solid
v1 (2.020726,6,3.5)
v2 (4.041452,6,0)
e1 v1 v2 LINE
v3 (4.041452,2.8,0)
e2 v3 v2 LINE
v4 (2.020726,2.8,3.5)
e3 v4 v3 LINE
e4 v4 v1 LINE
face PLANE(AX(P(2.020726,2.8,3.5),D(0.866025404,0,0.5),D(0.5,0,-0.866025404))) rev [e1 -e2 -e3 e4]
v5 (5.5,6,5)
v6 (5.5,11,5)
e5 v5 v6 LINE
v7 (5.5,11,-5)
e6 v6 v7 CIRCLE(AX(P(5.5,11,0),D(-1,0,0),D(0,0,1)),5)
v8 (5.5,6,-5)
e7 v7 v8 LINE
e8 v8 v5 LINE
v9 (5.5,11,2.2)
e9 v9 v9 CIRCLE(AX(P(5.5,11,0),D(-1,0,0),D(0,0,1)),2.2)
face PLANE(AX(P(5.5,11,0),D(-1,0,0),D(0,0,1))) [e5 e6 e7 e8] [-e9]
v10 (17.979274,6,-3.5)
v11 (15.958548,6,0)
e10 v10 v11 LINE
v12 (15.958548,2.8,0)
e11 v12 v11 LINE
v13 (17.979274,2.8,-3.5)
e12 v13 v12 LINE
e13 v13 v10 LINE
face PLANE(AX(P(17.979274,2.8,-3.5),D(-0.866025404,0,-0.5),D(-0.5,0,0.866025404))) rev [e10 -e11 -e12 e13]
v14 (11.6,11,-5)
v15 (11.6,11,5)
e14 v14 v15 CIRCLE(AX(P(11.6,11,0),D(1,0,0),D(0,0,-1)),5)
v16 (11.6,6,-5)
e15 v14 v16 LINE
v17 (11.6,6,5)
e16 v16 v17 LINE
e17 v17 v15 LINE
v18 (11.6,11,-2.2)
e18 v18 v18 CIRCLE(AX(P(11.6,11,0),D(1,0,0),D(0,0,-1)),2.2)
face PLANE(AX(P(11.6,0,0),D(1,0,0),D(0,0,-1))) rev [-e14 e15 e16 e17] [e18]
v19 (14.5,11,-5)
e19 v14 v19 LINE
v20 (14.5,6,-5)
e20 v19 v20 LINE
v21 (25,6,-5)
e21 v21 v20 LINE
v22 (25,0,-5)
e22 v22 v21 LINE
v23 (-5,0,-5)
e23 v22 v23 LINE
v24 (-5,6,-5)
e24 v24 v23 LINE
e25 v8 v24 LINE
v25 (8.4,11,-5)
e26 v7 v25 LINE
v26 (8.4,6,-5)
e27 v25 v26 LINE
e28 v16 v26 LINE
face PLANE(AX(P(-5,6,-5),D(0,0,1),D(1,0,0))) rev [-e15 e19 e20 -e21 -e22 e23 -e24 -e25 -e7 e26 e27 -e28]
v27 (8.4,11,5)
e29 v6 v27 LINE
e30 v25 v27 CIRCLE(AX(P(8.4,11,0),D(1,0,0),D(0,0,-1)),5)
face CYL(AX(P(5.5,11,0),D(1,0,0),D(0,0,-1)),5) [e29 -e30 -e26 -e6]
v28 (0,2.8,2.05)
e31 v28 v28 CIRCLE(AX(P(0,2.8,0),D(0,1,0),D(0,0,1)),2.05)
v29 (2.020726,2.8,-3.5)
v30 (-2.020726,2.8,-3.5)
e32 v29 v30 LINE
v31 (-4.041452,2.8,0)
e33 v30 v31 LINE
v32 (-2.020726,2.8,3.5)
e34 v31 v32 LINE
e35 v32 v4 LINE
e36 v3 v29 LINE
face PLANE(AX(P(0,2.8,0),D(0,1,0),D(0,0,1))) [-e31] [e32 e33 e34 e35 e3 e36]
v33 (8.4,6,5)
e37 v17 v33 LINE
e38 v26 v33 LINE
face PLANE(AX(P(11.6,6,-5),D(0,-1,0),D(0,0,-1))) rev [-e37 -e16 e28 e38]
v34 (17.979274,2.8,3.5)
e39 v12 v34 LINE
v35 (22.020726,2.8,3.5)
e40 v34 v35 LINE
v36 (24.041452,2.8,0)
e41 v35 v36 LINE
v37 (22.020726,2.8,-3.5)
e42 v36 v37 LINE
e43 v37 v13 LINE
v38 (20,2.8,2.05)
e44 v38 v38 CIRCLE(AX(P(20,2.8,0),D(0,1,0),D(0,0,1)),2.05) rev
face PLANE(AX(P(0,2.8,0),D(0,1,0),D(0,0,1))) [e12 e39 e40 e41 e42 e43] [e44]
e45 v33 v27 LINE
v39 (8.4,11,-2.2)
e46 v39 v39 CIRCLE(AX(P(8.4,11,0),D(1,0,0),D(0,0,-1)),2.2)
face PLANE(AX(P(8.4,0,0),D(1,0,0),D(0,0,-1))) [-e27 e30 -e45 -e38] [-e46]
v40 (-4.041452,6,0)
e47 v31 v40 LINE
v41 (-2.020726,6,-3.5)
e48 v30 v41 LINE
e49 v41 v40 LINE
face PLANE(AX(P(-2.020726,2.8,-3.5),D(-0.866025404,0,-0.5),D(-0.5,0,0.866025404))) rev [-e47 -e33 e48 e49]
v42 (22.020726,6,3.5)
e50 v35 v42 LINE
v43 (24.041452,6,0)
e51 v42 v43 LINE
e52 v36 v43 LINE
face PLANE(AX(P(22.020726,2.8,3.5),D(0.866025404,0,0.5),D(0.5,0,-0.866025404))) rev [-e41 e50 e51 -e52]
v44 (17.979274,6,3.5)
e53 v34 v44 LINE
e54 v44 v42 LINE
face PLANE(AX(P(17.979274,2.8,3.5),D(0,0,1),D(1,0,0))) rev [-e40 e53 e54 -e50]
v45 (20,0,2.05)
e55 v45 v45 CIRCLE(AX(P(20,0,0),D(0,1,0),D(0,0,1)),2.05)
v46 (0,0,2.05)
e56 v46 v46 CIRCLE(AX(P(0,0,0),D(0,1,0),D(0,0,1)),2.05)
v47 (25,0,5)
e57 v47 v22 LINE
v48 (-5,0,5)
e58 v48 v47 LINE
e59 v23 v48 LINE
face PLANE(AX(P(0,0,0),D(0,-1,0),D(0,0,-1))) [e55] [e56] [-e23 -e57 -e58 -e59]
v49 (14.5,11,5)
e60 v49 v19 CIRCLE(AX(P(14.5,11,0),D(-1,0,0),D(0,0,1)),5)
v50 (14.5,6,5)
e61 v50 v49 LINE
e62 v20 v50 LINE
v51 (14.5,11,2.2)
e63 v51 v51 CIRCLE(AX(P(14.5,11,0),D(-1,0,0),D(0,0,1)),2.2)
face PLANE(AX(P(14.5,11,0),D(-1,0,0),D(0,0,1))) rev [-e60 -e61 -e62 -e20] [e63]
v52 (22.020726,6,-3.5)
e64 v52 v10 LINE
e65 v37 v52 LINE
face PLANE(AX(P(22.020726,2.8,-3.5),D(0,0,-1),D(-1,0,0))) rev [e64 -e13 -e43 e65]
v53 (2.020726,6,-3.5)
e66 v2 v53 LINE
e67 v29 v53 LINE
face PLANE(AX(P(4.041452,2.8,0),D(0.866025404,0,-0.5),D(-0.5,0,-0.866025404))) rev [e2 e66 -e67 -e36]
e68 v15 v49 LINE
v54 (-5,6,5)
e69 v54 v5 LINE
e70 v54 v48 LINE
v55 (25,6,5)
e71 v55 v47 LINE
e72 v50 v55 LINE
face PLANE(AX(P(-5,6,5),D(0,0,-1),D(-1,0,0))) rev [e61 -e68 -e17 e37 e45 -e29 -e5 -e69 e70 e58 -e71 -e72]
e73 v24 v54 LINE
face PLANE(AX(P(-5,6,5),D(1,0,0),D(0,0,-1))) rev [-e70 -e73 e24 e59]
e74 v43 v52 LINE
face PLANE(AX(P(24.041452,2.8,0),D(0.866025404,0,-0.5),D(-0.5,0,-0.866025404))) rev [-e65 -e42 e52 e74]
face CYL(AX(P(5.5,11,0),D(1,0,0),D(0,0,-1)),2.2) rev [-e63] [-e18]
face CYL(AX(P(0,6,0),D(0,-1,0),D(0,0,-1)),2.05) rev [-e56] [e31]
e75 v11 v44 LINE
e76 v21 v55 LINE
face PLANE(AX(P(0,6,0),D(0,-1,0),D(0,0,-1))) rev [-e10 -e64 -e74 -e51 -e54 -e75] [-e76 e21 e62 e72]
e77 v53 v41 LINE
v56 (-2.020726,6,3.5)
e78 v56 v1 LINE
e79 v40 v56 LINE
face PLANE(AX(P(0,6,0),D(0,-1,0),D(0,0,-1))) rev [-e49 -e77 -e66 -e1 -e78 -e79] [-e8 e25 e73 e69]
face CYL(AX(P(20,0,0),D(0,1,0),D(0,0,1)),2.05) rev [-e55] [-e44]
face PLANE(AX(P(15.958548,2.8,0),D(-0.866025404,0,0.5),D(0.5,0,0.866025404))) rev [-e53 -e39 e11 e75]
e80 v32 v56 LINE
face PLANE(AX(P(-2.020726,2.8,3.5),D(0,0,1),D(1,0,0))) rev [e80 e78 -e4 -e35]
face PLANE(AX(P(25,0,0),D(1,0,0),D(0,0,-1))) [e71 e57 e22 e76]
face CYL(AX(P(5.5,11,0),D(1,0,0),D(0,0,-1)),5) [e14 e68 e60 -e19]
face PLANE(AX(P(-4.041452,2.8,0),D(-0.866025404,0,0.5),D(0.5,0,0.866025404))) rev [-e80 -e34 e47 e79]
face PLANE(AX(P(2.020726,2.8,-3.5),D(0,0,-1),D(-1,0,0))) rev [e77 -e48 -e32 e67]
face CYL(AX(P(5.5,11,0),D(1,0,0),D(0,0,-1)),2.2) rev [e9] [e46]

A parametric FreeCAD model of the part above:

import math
import FreeCAD as App
import Part
import Sketcher

V = App.Vector
Q = App.Units.Quantity

doc = App.newDocument("Part")
body = doc.addObject("PartDesign::Body", "Body")

# Sketch on XZ plane
sketch1 = body.newObject("Sketcher::SketchObject", "Sketch")
sketch1.AttachmentSupport = (doc.getObject("XZ_Plane"), [""])
sketch1.MapMode = "FlatFace"
sketch1.addGeometry([
    Part.LineSegment(V(-5, -5, 0), V(-5, 5, 0)),  # 0
    Part.LineSegment(V(-5, 5, 0), V(5, 5, 0)),  # 1
    Part.LineSegment(V(5, 5, 0), V(5, -5, 0)),  # 2
    Part.LineSegment(V(5, -5, 0), V(-5, -5, 0)),  # 3
    Part.Circle(V(0, 0, 0), V(0, 0, 1), 2),  # 4
], False)
sketch1.addConstraint([
    Sketcher.Constraint("Coincident", 0, 2, 1, 1),
    Sketcher.Constraint("Coincident", 1, 2, 2, 1),
    Sketcher.Constraint("Coincident", 2, 2, 3, 1),
    Sketcher.Constraint("Coincident", 3, 2, 0, 1),
    Sketcher.Constraint("Vertical", 0),
    Sketcher.Constraint("Horizontal", 1),
    Sketcher.Constraint("Vertical", 2),
    Sketcher.Constraint("Horizontal", 3),
    Sketcher.Constraint("Coincident", 4, 3, -1, 1),
    Sketcher.Constraint("Symmetric", 0, 2, 2, 2, -1, 1),
    Sketcher.Constraint("Equal", 3, 0),
    Sketcher.Constraint("Diameter", 4, 4.1),
    Sketcher.Constraint("DistanceX", 1, 1, 1, 2, 10.0),
])
pad1 = body.newObject("PartDesign::Pad", "Pad")
pad1.Profile = sketch1
pad1.Length = 6
pad1.Reversed = True

# Sketch on XZ plane
sketch2 = body.newObject("Sketcher::SketchObject", "Sketch001")
sketch2.AttachmentSupport = (doc.getObject("XZ_Plane"), [""])
sketch2.MapMode = "FlatFace"
sketch2.AttachmentOffset = App.Placement(V(0, 0, -6), App.Rotation())
sketch2.addGeometry([
    Part.LineSegment(V(4, 0, 0), V(2, -3.5, 0)),  # 0
    Part.LineSegment(V(2, -3.5, 0), V(-2, -3.5, 0)),  # 1
    Part.LineSegment(V(-2, -3.5, 0), V(-4, 0, 0)),  # 2
    Part.LineSegment(V(-4, 0, 0), V(-2, 3.5, 0)),  # 3
    Part.LineSegment(V(-2, 3.5, 0), V(2, 3.5, 0)),  # 4
    Part.LineSegment(V(2, 3.5, 0), V(4, 0, 0)),  # 5
], False)
sketch2.addConstraint([
    Sketcher.Constraint("Coincident", 0, 2, 1, 1),
    Sketcher.Constraint("Coincident", 1, 2, 2, 1),
    Sketcher.Constraint("Coincident", 2, 2, 3, 1),
    Sketcher.Constraint("Coincident", 3, 2, 4, 1),
    Sketcher.Constraint("Coincident", 4, 2, 5, 1),
    Sketcher.Constraint("Coincident", 5, 2, 0, 1),
    Sketcher.Constraint("Horizontal", 1),
    Sketcher.Constraint("Horizontal", 4),
    Sketcher.Constraint("Symmetric", 0, 2, 3, 2, -1, 1),
    Sketcher.Constraint("Symmetric", 2, 2, 5, 2, -1, 1),
    Sketcher.Constraint("PointOnObject", 2, 2, -1),
    Sketcher.Constraint("Parallel", 2, 5),
    Sketcher.Constraint("Vertical", 1, 2, 3, 2),
    Sketcher.Constraint("Angle", 0, Q("-120 deg")),
    Sketcher.Constraint("DistanceY", 1, 2, 3, 2, 7.0),
    Sketcher.Constraint("DistanceX", 1, 2, 1, 1, 4.041452),
])
pocket1 = body.newObject("PartDesign::Pocket", "Pocket")
pocket1.Profile = sketch2
pocket1.Length = 3.2
pocket1.Reversed = True

# Sketch on YZ plane
sketch3 = body.newObject("Sketcher::SketchObject", "Sketch002")
sketch3.AttachmentSupport = (doc.getObject("YZ_Plane"), [""])
sketch3.MapMode = "FlatFace"
sketch3.AttachmentOffset = App.Placement(V(0, 0, 5), App.Rotation())
sketch3.addGeometry([
    Part.LineSegment(V(6, 5, 0), V(0, 5, 0)),
    Part.LineSegment(V(0, 5, 0), V(0, -5, 0)),
    Part.LineSegment(V(0, -5, 0), V(6, -5, 0)),
    Part.LineSegment(V(6, -5, 0), V(6, 5, 0)),
], False)
sketch3.addConstraint([
    Sketcher.Constraint("Coincident", 0, 2, 1, 1),
    Sketcher.Constraint("Coincident", 1, 2, 2, 1),
    Sketcher.Constraint("Coincident", 2, 2, 3, 1),
    Sketcher.Constraint("Coincident", 3, 2, 0, 1),
    Sketcher.Constraint("Horizontal", 0),
    Sketcher.Constraint("Vertical", 1),
    Sketcher.Constraint("Horizontal", 2),
    Sketcher.Constraint("Vertical", 3),
    Sketcher.Constraint("Symmetric", 0, 2, 1, 2, -1, 1),
    Sketcher.Constraint("DistanceX", 0, 2, 0, 1, 6.0),
    Sketcher.Constraint("DistanceY", 1, 2, 1, 1, 10.0),
])
pad2 = body.newObject("PartDesign::Pad", "Pad001")
pad2.Profile = sketch3
pad2.Length = 20

# Sketch on XZ plane
sketch4 = body.newObject("Sketcher::SketchObject", "Sketch003")
sketch4.AttachmentSupport = (doc.getObject("XZ_Plane"), [""])
sketch4.MapMode = "FlatFace"
sketch4.AttachmentOffset = App.Placement(V(0, 0, -6), App.Rotation())
sketch4.addGeometry(Part.Circle(V(20, 0, 0), V(0, 0, 1), 2), False)
sketch4.addConstraint([
    Sketcher.Constraint("PointOnObject", 0, 3, -1),
    Sketcher.Constraint("Diameter", 0, 4.1),
    Sketcher.Constraint("DistanceX", -1, 1, 0, 3, 20.0),
])
pocket2 = body.newObject("PartDesign::Pocket", "Pocket001")
pocket2.Profile = sketch4
pocket2.Type = "ThroughAll"
pocket2.Reversed = True

# Sketch on XZ plane
sketch5 = body.newObject("Sketcher::SketchObject", "Sketch004")
sketch5.AttachmentSupport = (doc.getObject("XZ_Plane"), [""])
sketch5.MapMode = "FlatFace"
sketch5.AttachmentOffset = App.Placement(V(0, 0, -6), App.Rotation())
sketch5.addGeometry([
    Part.LineSegment(V(24, 0, 0), V(22, -3.5, 0)),  # 0
    Part.LineSegment(V(22, -3.5, 0), V(18, -3.5, 0)),  # 1
    Part.LineSegment(V(18, -3.5, 0), V(16, 0, 0)),  # 2
    Part.LineSegment(V(16, 0, 0), V(18, 3.5, 0)),  # 3
    Part.LineSegment(V(18, 3.5, 0), V(22, 3.5, 0)),  # 4
    Part.LineSegment(V(22, 3.5, 0), V(24, 0, 0)),  # 5
], False)
sketch5.addConstraint([
    Sketcher.Constraint("Coincident", 0, 2, 1, 1),
    Sketcher.Constraint("Coincident", 1, 2, 2, 1),
    Sketcher.Constraint("Coincident", 2, 2, 3, 1),
    Sketcher.Constraint("Coincident", 3, 2, 4, 1),
    Sketcher.Constraint("Coincident", 4, 2, 5, 1),
    Sketcher.Constraint("Coincident", 5, 2, 0, 1),
    Sketcher.Constraint("Horizontal", 1),
    Sketcher.Constraint("Horizontal", 4),
    Sketcher.Constraint("Symmetric", 1, 2, 3, 2, -1),
    Sketcher.Constraint("PointOnObject", 2, 2, -1),
    Sketcher.Constraint("PointOnObject", 5, 2, -1),
    Sketcher.Constraint("Parallel", 0, 3),
    Sketcher.Constraint("Parallel", 2, 5),
    Sketcher.Constraint("Angle", 0, Q("-120 deg")),
    Sketcher.Constraint("DistanceY", 1, 2, 3, 2, 7.0),
    Sketcher.Constraint("DistanceX", 1, 2, 1, 1, 4.041452),
    Sketcher.Constraint("DistanceX", -1, 1, 2, 2, 15.958548),
])
pocket3 = body.newObject("PartDesign::Pocket", "Pocket002")
pocket3.Profile = sketch5
pocket3.Length = 3.2
pocket3.Reversed = True

# Sketch on YZ plane
sketch6 = body.newObject("Sketcher::SketchObject", "Sketch005")
sketch6.AttachmentSupport = (doc.getObject("YZ_Plane"), [""])
sketch6.MapMode = "FlatFace"
sketch6.AttachmentOffset = App.Placement(V(0, 0, 10), App.Rotation())
sketch6.addGeometry([
    Part.LineSegment(V(6, 5, 0), V(11, 5, 0)),  # 0
    Part.ArcOfCircle(Part.Circle(V(11, 0, 0), V(0, 0, 1), 5), math.radians(-90), math.radians(90)),  # 1
    Part.LineSegment(V(11, -5, 0), V(6, -5, 0)),  # 2
    Part.LineSegment(V(6, -5, 0), V(6, 5, 0)),  # 3
    Part.Circle(V(11, 0, 0), V(0, 0, 1), 2.2),  # 4
], False)
sketch6.addConstraint([
    Sketcher.Constraint("Tangent", 0, 2, 1, 2),
    Sketcher.Constraint("Tangent", 1, 1, 2, 1),
    Sketcher.Constraint("Coincident", 2, 2, 3, 1),
    Sketcher.Constraint("Coincident", 3, 2, 0, 1),
    Sketcher.Constraint("Horizontal", 0),
    Sketcher.Constraint("Horizontal", 2),
    Sketcher.Constraint("Vertical", 3),
    Sketcher.Constraint("Coincident", 4, 3, 1, 3),
    Sketcher.Constraint("PointOnObject", 1, 3, -1),
    Sketcher.Constraint("Radius", 1, 5.0),
    Sketcher.Constraint("Diameter", 4, 4.4),
    Sketcher.Constraint("DistanceX", 0, 1, 0, 2, 5.0),
    Sketcher.Constraint("DistanceX", -1, 1, 1, 3, 11.0),
])
pad3 = body.newObject("PartDesign::Pad", "Pad002")
pad3.Profile = sketch6
pad3.Length = 9
pad3.Midplane = True

# Sketch on YZ plane
sketch7 = body.newObject("Sketcher::SketchObject", "Sketch006")
sketch7.AttachmentSupport = (doc.getObject("YZ_Plane"), [""])
sketch7.MapMode = "FlatFace"
sketch7.AttachmentOffset = App.Placement(V(0, 0, 10), App.Rotation())
sketch7.addGeometry([
    Part.LineSegment(V(16, -5, 0), V(6, -5, 0)),
    Part.LineSegment(V(6, -5, 0), V(6, 5, 0)),
    Part.LineSegment(V(6, 5, 0), V(16, 5, 0)),
    Part.LineSegment(V(16, 5, 0), V(16, -5, 0)),
], False)
sketch7.addConstraint([
    Sketcher.Constraint("Coincident", 0, 2, 1, 1),
    Sketcher.Constraint("Coincident", 1, 2, 2, 1),
    Sketcher.Constraint("Coincident", 2, 2, 3, 1),
    Sketcher.Constraint("Coincident", 3, 2, 0, 1),
    Sketcher.Constraint("Horizontal", 0),
    Sketcher.Constraint("Vertical", 1),
    Sketcher.Constraint("Horizontal", 2),
    Sketcher.Constraint("Vertical", 3),
    Sketcher.Constraint("DistanceY", 1, 1, 1, 2, 10.0),
    Sketcher.Constraint("DistanceX", -1, 1, 0, 2, 6.0),
    Sketcher.Constraint("DistanceY", 0, 2, -1, 1, 5.0),
    Sketcher.Constraint("DistanceX", 0, 2, 0, 1, 10.114723),
])
pocket4 = body.newObject("PartDesign::Pocket", "Pocket003")
pocket4.Profile = sketch7
pocket4.Length = 3.2
pocket4.Midplane = True

doc.recompute()
